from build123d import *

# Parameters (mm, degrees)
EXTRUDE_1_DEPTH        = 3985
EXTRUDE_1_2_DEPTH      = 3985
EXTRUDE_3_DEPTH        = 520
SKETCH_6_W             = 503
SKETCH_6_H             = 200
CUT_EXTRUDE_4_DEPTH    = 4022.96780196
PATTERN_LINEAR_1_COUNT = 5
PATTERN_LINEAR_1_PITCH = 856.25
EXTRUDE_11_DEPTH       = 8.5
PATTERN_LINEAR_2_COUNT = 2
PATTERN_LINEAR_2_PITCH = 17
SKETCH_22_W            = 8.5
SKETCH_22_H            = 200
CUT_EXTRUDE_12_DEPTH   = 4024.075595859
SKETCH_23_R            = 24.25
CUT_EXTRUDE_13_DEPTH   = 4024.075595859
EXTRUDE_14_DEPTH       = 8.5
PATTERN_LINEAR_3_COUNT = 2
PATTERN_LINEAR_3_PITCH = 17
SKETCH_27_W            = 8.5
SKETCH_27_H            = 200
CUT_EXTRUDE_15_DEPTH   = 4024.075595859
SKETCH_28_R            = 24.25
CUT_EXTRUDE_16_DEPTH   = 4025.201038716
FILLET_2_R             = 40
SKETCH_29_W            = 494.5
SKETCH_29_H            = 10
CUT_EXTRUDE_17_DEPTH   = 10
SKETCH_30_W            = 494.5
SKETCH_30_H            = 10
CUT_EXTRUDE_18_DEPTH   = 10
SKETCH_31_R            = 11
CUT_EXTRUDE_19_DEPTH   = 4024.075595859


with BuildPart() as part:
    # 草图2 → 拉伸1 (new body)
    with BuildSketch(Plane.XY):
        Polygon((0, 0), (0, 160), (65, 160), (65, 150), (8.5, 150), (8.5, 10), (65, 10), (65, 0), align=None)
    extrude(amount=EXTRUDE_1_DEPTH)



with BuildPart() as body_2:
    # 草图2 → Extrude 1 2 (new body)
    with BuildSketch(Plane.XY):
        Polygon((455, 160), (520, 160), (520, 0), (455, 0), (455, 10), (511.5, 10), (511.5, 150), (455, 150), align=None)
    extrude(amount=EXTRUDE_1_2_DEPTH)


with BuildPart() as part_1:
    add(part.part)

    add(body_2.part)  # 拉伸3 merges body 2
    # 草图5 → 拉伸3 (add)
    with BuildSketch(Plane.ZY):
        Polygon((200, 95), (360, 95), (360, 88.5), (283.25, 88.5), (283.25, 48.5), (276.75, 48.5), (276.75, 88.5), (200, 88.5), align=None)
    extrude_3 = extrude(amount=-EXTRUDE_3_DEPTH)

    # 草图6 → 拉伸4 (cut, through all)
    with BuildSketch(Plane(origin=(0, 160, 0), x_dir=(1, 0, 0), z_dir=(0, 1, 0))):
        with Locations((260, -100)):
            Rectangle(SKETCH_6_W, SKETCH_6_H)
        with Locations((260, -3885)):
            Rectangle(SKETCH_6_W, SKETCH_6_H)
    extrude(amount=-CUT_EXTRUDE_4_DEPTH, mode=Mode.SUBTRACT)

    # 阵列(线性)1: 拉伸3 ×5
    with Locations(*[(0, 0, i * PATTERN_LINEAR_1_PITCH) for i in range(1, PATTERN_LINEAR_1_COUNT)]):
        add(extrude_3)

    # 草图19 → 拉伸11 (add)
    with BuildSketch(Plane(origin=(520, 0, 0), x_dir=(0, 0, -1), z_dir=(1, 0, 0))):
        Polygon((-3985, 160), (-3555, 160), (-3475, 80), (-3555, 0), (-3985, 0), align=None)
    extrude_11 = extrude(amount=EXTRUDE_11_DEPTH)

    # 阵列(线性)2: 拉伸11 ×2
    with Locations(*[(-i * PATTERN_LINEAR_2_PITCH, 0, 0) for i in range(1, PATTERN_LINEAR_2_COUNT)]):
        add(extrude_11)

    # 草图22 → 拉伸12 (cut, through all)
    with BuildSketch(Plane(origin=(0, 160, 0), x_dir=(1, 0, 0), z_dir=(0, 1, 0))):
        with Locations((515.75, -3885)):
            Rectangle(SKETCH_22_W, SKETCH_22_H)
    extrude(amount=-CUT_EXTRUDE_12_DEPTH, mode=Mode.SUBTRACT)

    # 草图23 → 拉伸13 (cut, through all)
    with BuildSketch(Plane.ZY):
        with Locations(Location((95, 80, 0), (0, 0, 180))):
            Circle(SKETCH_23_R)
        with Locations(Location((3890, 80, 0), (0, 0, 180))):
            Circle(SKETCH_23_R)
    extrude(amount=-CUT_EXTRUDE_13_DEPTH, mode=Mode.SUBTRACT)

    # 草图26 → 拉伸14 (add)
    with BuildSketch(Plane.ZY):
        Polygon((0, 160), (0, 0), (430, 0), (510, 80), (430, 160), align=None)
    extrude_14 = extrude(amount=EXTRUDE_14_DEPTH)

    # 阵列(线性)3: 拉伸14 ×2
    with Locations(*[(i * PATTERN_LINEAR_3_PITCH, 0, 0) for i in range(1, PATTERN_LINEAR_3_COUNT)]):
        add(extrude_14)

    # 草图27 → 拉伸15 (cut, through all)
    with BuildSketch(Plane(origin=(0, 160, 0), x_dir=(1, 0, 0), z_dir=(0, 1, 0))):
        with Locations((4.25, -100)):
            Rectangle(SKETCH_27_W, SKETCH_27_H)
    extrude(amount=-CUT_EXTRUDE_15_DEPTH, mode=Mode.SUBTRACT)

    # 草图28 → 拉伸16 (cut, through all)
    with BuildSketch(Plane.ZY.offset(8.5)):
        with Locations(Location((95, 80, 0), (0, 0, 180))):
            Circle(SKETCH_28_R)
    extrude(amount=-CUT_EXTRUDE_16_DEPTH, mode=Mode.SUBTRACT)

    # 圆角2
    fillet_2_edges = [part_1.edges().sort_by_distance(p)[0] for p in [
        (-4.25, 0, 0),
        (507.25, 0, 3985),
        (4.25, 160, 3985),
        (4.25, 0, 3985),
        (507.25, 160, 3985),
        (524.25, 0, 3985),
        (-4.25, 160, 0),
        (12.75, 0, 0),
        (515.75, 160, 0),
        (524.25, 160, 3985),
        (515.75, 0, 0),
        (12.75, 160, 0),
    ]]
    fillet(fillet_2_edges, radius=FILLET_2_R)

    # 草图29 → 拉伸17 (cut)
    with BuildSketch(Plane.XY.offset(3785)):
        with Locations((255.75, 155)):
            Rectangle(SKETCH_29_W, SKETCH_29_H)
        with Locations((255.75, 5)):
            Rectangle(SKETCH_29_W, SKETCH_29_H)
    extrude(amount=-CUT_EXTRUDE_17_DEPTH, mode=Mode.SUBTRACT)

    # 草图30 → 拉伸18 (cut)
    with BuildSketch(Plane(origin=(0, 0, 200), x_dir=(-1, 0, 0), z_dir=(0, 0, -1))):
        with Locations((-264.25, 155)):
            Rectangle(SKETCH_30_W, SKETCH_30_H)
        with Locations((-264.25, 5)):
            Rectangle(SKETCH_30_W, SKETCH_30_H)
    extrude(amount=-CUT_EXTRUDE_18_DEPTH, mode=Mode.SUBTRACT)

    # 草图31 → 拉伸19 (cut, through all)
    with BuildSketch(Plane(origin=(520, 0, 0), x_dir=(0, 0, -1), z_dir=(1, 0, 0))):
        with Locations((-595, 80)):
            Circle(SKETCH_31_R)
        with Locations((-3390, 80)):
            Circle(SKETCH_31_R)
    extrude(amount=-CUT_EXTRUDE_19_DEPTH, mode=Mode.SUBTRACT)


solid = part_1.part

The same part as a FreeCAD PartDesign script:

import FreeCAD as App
import Part
import Sketcher
from FreeCAD import Vector
Q = App.Units.Quantity


def edges_at(feature, points):
    """Names of the edges that pass closest to the given points."""
    edges = feature.Shape.Edges
    near = lambda p: min(range(len(edges)), key=lambda i: edges[i].distToShape(Part.Vertex(*p))[0])
    return sorted({f"Edge{near(p) + 1}" for p in points})


def add_polygon(sketch, points):
    """Adds a closed chain of lines whose ends are joined by coincident constraints."""
    first, n = sketch.GeometryCount, len(points)
    for a, b in zip(points, points[1:] + points[:1]):
        sketch.addGeometry(Part.LineSegment(App.Vector(*a, 0), App.Vector(*b, 0)), False)
    for i in range(n):
        sketch.addConstraint(Sketcher.Constraint("Coincident", first + i, 2, first + (i + 1) % n, 1))

doc = App.newDocument("Part")
body = doc.addObject("PartDesign::Body", "Body")

# Sketch on XY plane
sketch1 = body.newObject("Sketcher::SketchObject", "Sketch")
sketch1.AttachmentSupport = (doc.getObject("XY_Plane"), [""])
sketch1.MapMode = "FlatFace"
add_polygon(sketch1, [(0, 160), (0, 0), (65, 0), (65, 10), (8, 10), (8, 150), (65, 150), (65, 160)])  # lines 0-7
sketch1.addConstraint([
    Sketcher.Constraint("Vertical", 0),
    Sketcher.Constraint("Horizontal", 1),
    Sketcher.Constraint("Vertical", 2),
    Sketcher.Constraint("Horizontal", 3),
    Sketcher.Constraint("Vertical", 4),
    Sketcher.Constraint("Horizontal", 5),
    Sketcher.Constraint("Vertical", 6),
    Sketcher.Constraint("Horizontal", 7),
    Sketcher.Constraint("Coincident", 0, 2, -1, 1),
    Sketcher.Constraint("Vertical", 2, 2, 5, 2),
    Sketcher.Constraint("Equal", 2, 6),
    Sketcher.Constraint("DistanceX", 1, 1, 1, 2, Q("65 mm")),
    Sketcher.Constraint("DistanceY", 0, 2, 0, 1, Q("160 mm")),
    Sketcher.Constraint("DistanceY", 2, 1, 2, 2, Q("10 mm")),
    Sketcher.Constraint("DistanceX", 3, 2, 3, 1, Q("56.5 mm")),
])
pad1 = body.newObject("PartDesign::Pad", "Pad")
pad1.Profile = sketch1
pad1.Length = 3985
body2 = doc.addObject("PartDesign::Body", "Body001")

# Sketch on XY plane
sketch2 = body2.newObject("Sketcher::SketchObject", "Sketch001")
sketch2.AttachmentSupport = (doc.getObject("XY_Plane001"), [""])
sketch2.MapMode = "FlatFace"
add_polygon(sketch2, [(520, 160), (455, 160), (455, 150), (512, 150), (512, 10), (455, 10), (455, 0), (520, 0)])  # lines 0-7
sketch2.addConstraint([
    Sketcher.Constraint("Horizontal", 0),
    Sketcher.Constraint("Vertical", 1),
    Sketcher.Constraint("Horizontal", 2),
    Sketcher.Constraint("Vertical", 3),
    Sketcher.Constraint("Horizontal", 4),
    Sketcher.Constraint("Vertical", 5),
    Sketcher.Constraint("Horizontal", 6),
    Sketcher.Constraint("Vertical", 7),
    Sketcher.Constraint("PointOnObject", 5, 2, -1),
    Sketcher.Constraint("Vertical", 1, 2, 4, 2),
    Sketcher.Constraint("Equal", 1, 5),
    Sketcher.Constraint("DistanceX", 0, 2, 0, 1, Q("65 mm")),
    Sketcher.Constraint("DistanceY", 1, 2, 1, 1, Q("10 mm")),
    Sketcher.Constraint("DistanceY", 3, 2, 3, 1, Q("140 mm")),
    Sketcher.Constraint("DistanceX", 2, 1, 2, 2, Q("56.5 mm")),
    Sketcher.Constraint("DistanceX", -1, 1, 0, 2, Q("455 mm")),
])
pad2 = body2.newObject("PartDesign::Pad", "Pad001")
pad2.Profile = sketch2
pad2.Length = 3985
body.AllowCompound = True
doc.recompute()

boolean = body.newObject("PartDesign::Boolean", "Boolean")
boolean.Type = "Fuse"
boolean.addObjects([body2])

# Sketch on YZ plane
sketch3 = body.newObject("Sketcher::SketchObject", "Sketch002")
sketch3.AttachmentSupport = (doc.getObject("YZ_Plane"), [""])
sketch3.MapMode = "FlatFace"
add_polygon(sketch3, [(95, 360), (95, 200), (88, 200), (88, 277), (48, 277), (48, 283), (88, 283), (88, 360)])  # lines 0-7
sketch3.addConstraint([
    Sketcher.Constraint("Vertical", 0),
    Sketcher.Constraint("Horizontal", 1),
    Sketcher.Constraint("Vertical", 2),
    Sketcher.Constraint("Horizontal", 3),
    Sketcher.Constraint("Vertical", 4),
    Sketcher.Constraint("Horizontal", 5),
    Sketcher.Constraint("Vertical", 6),
    Sketcher.Constraint("Horizontal", 7),
    Sketcher.Constraint("Vertical", 2, 2, 5, 2),
    Sketcher.Constraint("Equal", 7, 4),
    Sketcher.Constraint("Equal", 2, 6),
    Sketcher.Constraint("DistanceX", 3, 2, 3, 1, Q("40 mm")),
    Sketcher.Constraint("DistanceY", 0, 2, 0, 1, Q("160 mm")),
    Sketcher.Constraint("DistanceX", 1, 2, 1, 1, Q("6.5 mm")),
    Sketcher.Constraint("DistanceX", -1, 1, 0, 2, Q("95 mm")),
    Sketcher.Constraint("DistanceY", -1, 1, 0, 2, Q("200 mm")),
])
pad3 = body.newObject("PartDesign::Pad", "Pad002")
pad3.Profile = sketch3
pad3.Length = 520

# Sketch on XZ plane
sketch4 = body.newObject("Sketcher::SketchObject", "Sketch003")
sketch4.AttachmentSupport = (doc.getObject("XZ_Plane"), [""])
sketch4.MapMode = "FlatFace"
sketch4.AttachmentOffset = App.Placement(Vector(0, 0, -160), App.Rotation())
add_polygon(sketch4, [(8, 0), (8, 200), (512, 200), (512, 0)])  # lines 0-3
add_polygon(sketch4, [(8, 3785), (8, 3985), (512, 3985), (512, 3785)])  # lines 4-7
sketch4.addConstraint([
    Sketcher.Constraint("Vertical", 0),
    Sketcher.Constraint("Horizontal", 1),
    Sketcher.Constraint("Vertical", 2),
    Sketcher.Constraint("Horizontal", 3),
    Sketcher.Constraint("Vertical", 4),
    Sketcher.Constraint("Horizontal", 5),
    Sketcher.Constraint("Vertical", 6),
    Sketcher.Constraint("Horizontal", 7),
    Sketcher.Constraint("PointOnObject", 2, 2, -1),
    Sketcher.Constraint("Vertical", 3, 2, 4, 2),
    Sketcher.Constraint("Vertical", 2, 2, 5, 2),
    Sketcher.Constraint("Equal", 2, 4),
    Sketcher.Constraint("DistanceX", 1, 1, 1, 2, Q("503 mm")),
    Sketcher.Constraint("DistanceY", 0, 1, 0, 2, Q("200 mm")),
    Sketcher.Constraint("DistanceY", -1, 1, 4, 2, Q("3985 mm")),
    Sketcher.Constraint("DistanceX", -1, 1, 0, 2, Q("8.5 mm")),
])
pocket1 = body.newObject("PartDesign::Pocket", "Pocket")
pocket1.Profile = sketch4
pocket1.Type = "ThroughAll"
pocket1.Reversed = True
doc.recompute()

linearpattern = body.newObject("PartDesign::LinearPattern", "LinearPattern")
linearpattern.Originals = [pad3]
linearpattern.Direction = (doc.getObject("Z_Axis"), [""])
linearpattern.Mode = "offset"
linearpattern.Offset = 856.25
linearpattern.Occurrences = 5
body.Tip = linearpattern

# Sketch on YZ plane
sketch5 = body.newObject("Sketcher::SketchObject", "Sketch004")
sketch5.AttachmentSupport = (doc.getObject("YZ_Plane"), [""])
sketch5.MapMode = "FlatFace"
sketch5.AttachmentOffset = App.Placement(Vector(0, 0, 520), App.Rotation())
add_polygon(sketch5, [(160, 3555), (160, 3985), (0, 3985), (0, 3555), (80, 3475)])  # lines 0-4
sketch5.addConstraint([
    Sketcher.Constraint("Vertical", 0),
    Sketcher.Constraint("Horizontal", 1),
    Sketcher.Constraint("Vertical", 2),
    Sketcher.Constraint("PointOnObject", 1, 2, -2),
    Sketcher.Constraint("Perpendicular", 3, 4),
    Sketcher.Constraint("Horizontal", 2, 2, 4, 2),
    Sketcher.Constraint("Equal", 3, 4),
    Sketcher.Constraint("DistanceX", 1, 2, 1, 1, Q("160 mm")),
    Sketcher.Constraint("DistanceY", 0, 1, 0, 2, Q("430 mm")),
    Sketcher.Constraint("DistanceY", -1, 1, 0, 2, Q("3985 mm")),
])
pad4 = body.newObject("PartDesign::Pad", "Pad003")
pad4.Profile = sketch5
pad4.Length = 8.5
doc.recompute()

linearpattern2 = body.newObject("PartDesign::LinearPattern", "LinearPattern001")
linearpattern2.Originals = [pad4]
linearpattern2.Direction = (doc.getObject("X_Axis"), [""])
linearpattern2.Mode = "offset"
linearpattern2.Offset = 17
linearpattern2.Occurrences = 2
linearpattern2.Reversed = True
body.Tip = linearpattern2

# Sketch on XZ plane
sketch6 = body.newObject("Sketcher::SketchObject", "Sketch005")
sketch6.AttachmentSupport = (doc.getObject("XZ_Plane"), [""])
sketch6.MapMode = "FlatFace"
sketch6.AttachmentOffset = App.Placement(Vector(0, 0, -160), App.Rotation())
add_polygon(sketch6, [(512, 3785), (512, 3985), (520, 3985), (520, 3785)])  # lines 0-3
sketch6.addConstraint([
    Sketcher.Constraint("Vertical", 0),
    Sketcher.Constraint("Horizontal", 1),
    Sketcher.Constraint("Vertical", 2),
    Sketcher.Constraint("Horizontal", 3),
    Sketcher.Constraint("DistanceY", 0, 1, 0, 2, Q("200 mm")),
    Sketcher.Constraint("DistanceX", 1, 1, 1, 2, Q("8.5 mm")),
    Sketcher.Constraint("DistanceY", -1, 1, 0, 2, Q("3985 mm")),
    Sketcher.Constraint("DistanceX", -1, 1, 1, 2, Q("520 mm")),
])
pocket2 = body.newObject("PartDesign::Pocket", "Pocket001")
pocket2.Profile = sketch6
pocket2.Type = "ThroughAll"
pocket2.Reversed = True

# Sketch on YZ plane
sketch7 = body.newObject("Sketcher::SketchObject", "Sketch006")
sketch7.AttachmentSupport = (doc.getObject("YZ_Plane"), [""])
sketch7.MapMode = "FlatFace"
sketch7.addGeometry([
    Part.Circle(Vector(80, 95, 0), Vector(0, 0, 1), 24),
    Part.Circle(Vector(80, 3890, 0), Vector(0, 0, 1), 24),
], False)
sketch7.addConstraint([
    Sketcher.Constraint("Equal", 0, 1),
    Sketcher.Constraint("Vertical", 0, 3, 1, 3),
    Sketcher.Constraint("Diameter", 0, Q("48.5 mm")),
    Sketcher.Constraint("DistanceX", -1, 1, 0, 3, Q("80 mm")),
    Sketcher.Constraint("DistanceY", -1, 1, 0, 3, Q("95 mm")),
    Sketcher.Constraint("DistanceY", -1, 1, 1, 3, Q("3890 mm")),
])
pocket3 = body.newObject("PartDesign::Pocket", "Pocket002")
pocket3.Profile = sketch7
pocket3.Type = "ThroughAll"
pocket3.Reversed = True

# Sketch on YZ plane
sketch8 = body.newObject("Sketcher::SketchObject", "Sketch007")
sketch8.AttachmentSupport = (doc.getObject("YZ_Plane"), [""])
sketch8.MapMode = "FlatFace"
add_polygon(sketch8, [(160, 0), (0, 0), (0, 430), (80, 510), (160, 430)])  # lines 0-4
sketch8.addConstraint([
    Sketcher.Constraint("Horizontal", 0),
    Sketcher.Constraint("Vertical", 1),
    Sketcher.Constraint("Vertical", 4),
    Sketcher.Constraint("Coincident", 0, 2, -1, 1),
    Sketcher.Constraint("Perpendicular", 2, 3),
    Sketcher.Constraint("Horizontal", 1, 2, 3, 2),
    Sketcher.Constraint("Equal", 2, 3),
    Sketcher.Constraint("DistanceX", 0, 2, 0, 1, Q("160 mm")),
    Sketcher.Constraint("DistanceY", 1, 1, 1, 2, Q("430 mm")),
])
pad5 = body.newObject("PartDesign::Pad", "Pad004")
pad5.Profile = sketch8
pad5.Length = 8.5
pad5.Reversed = True
doc.recompute()

linearpattern3 = body.newObject("PartDesign::LinearPattern", "LinearPattern002")
linearpattern3.Originals = [pad5]
linearpattern3.Direction = (doc.getObject("X_Axis"), [""])
linearpattern3.Mode = "offset"
linearpattern3.Offset = 17
linearpattern3.Occurrences = 2
body.Tip = linearpattern3

# Sketch on XZ plane
sketch9 = body.newObject("Sketcher::SketchObject", "Sketch008")
sketch9.AttachmentSupport = (doc.getObject("XZ_Plane"), [""])
sketch9.MapMode = "FlatFace"
sketch9.AttachmentOffset = App.Placement(Vector(0, 0, -160), App.Rotation())
add_polygon(sketch9, [(0, 0), (0, 200), (8, 200), (8, 0)])  # lines 0-3
sketch9.addConstraint([
    Sketcher.Constraint("Vertical", 0),
    Sketcher.Constraint("Horizontal", 1),
    Sketcher.Constraint("Vertical", 2),
    Sketcher.Constraint("Horizontal", 3),
    Sketcher.Constraint("Coincident", 3, 2, -1, 1),
    Sketcher.Constraint("DistanceY", 0, 1, 0, 2, Q("200 mm")),
    Sketcher.Constraint("DistanceX", 1, 1, 1, 2, Q("8.5 mm")),
])
pocket4 = body.newObject("PartDesign::Pocket", "Pocket003")
pocket4.Profile = sketch9
pocket4.Type = "ThroughAll"
pocket4.Reversed = True

# Sketch on YZ plane
sketch10 = body.newObject("Sketcher::SketchObject", "Sketch009")
sketch10.AttachmentSupport = (doc.getObject("YZ_Plane"), [""])
sketch10.MapMode = "FlatFace"
sketch10.AttachmentOffset = App.Placement(Vector(0, 0, -8.5), App.Rotation())
sketch10.addGeometry(Part.Circle(Vector(80, 95, 0), Vector(0, 0, 1), 24), False)
sketch10.addConstraint([
    Sketcher.Constraint("Diameter", 0, Q("48.5 mm")),
    Sketcher.Constraint("DistanceX", -1, 1, 0, 3, Q("80 mm")),
    Sketcher.Constraint("DistanceY", -1, 1, 0, 3, Q("95 mm")),
])
pocket5 = body.newObject("PartDesign::Pocket", "Pocket004")
pocket5.Profile = sketch10
pocket5.Type = "ThroughAll"
pocket5.Reversed = True
doc.recompute()

fillet = body.newObject("PartDesign::Fillet", "Fillet")
fillet.Base = (pocket5, edges_at(pocket5, [
    (-4.25, 0, 0),
    (507.25, 0, 3985),
    (4.25, 160, 3985),
    (4.25, 0, 3985),
    (507.25, 160, 3985),
    (524.25, 0, 3985),
    (-4.25, 160, 0),
    (12.75, 0, 0),
    (515.75, 160, 0),
    (524.25, 160, 3985),
    (515.75, 0, 0),
    (12.75, 160, 0),
]))
fillet.Radius = 40

# Sketch on XY plane
sketch11 = body.newObject("Sketcher::SketchObject", "Sketch010")
sketch11.AttachmentSupport = (doc.getObject("XY_Plane"), [""])
sketch11.MapMode = "FlatFace"
sketch11.AttachmentOffset = App.Placement(Vector(0, 0, 3785), App.Rotation())
add_polygon(sketch11, [(8, 160), (8, 150), (503, 150), (503, 160)])  # lines 0-3
add_polygon(sketch11, [(8, 10), (8, 0), (503, 0), (503, 10)])  # lines 4-7
sketch11.addConstraint([
    Sketcher.Constraint("Vertical", 0),
    Sketcher.Constraint("Horizontal", 1),
    Sketcher.Constraint("Vertical", 2),
    Sketcher.Constraint("Horizontal", 3),
    Sketcher.Constraint("Vertical", 4),
    Sketcher.Constraint("Horizontal", 5),
    Sketcher.Constraint("Vertical", 6),
    Sketcher.Constraint("Horizontal", 7),
    Sketcher.Constraint("PointOnObject", 4, 2, -1),
    Sketcher.Constraint("Vertical", 3, 2, 4, 2),
    Sketcher.Constraint("Vertical", 2, 2, 5, 2),
    Sketcher.Constraint("Equal", 2, 4),
    Sketcher.Constraint("DistanceY", 0, 2, 0, 1, Q("10 mm")),
    Sketcher.Constraint("DistanceX", 1, 1, 1, 2, Q("494.5 mm")),
    Sketcher.Constraint("DistanceY", -1, 1, 0, 2, Q("150 mm")),
    Sketcher.Constraint("DistanceX", -1, 1, 1, 2, Q("503 mm")),
])
pocket6 = body.newObject("PartDesign::Pocket", "Pocket005")
pocket6.Profile = sketch11
pocket6.Length = 10

# Sketch on XY plane
sketch12 = body.newObject("Sketcher::SketchObject", "Sketch011")
sketch12.AttachmentSupport = (doc.getObject("XY_Plane"), [""])
sketch12.MapMode = "FlatFace"
sketch12.AttachmentOffset = App.Placement(Vector(0, 0, 200), App.Rotation())
add_polygon(sketch12, [(512, 160), (512, 150), (17, 150), (17, 160)])  # lines 0-3
add_polygon(sketch12, [(512, 10), (512, 0), (17, 0), (17, 10)])  # lines 4-7
sketch12.addConstraint([
    Sketcher.Constraint("Vertical", 0),
    Sketcher.Constraint("Horizontal", 1),
    Sketcher.Constraint("Vertical", 2),
    Sketcher.Constraint("Horizontal", 3),
    Sketcher.Constraint("Vertical", 4),
    Sketcher.Constraint("Horizontal", 5),
    Sketcher.Constraint("Vertical", 6),
    Sketcher.Constraint("Horizontal", 7),
    Sketcher.Constraint("PointOnObject", 4, 2, -1),
    Sketcher.Constraint("Vertical", 3, 2, 4, 2),
    Sketcher.Constraint("Vertical", 2, 2, 5, 2),
    Sketcher.Constraint("Equal", 2, 4),
    Sketcher.Constraint("DistanceY", 0, 2, 0, 1, Q("10 mm")),
    Sketcher.Constraint("DistanceX", 1, 2, 1, 1, Q("494.5 mm")),
    Sketcher.Constraint("DistanceY", -1, 1, 0, 2, Q("150 mm")),
    Sketcher.Constraint("DistanceX", -1, 1, 1, 2, Q("17 mm")),
])
pocket7 = body.newObject("PartDesign::Pocket", "Pocket006")
pocket7.Profile = sketch12
pocket7.Length = 10
pocket7.Reversed = True

# Sketch on YZ plane
sketch13 = body.newObject("Sketcher::SketchObject", "Sketch012")
sketch13.AttachmentSupport = (doc.getObject("YZ_Plane"), [""])
sketch13.MapMode = "FlatFace"
sketch13.AttachmentOffset = App.Placement(Vector(0, 0, 520), App.Rotation())
sketch13.addGeometry([
    Part.Circle(Vector(80, 595, 0), Vector(0, 0, 1), 11),
    Part.Circle(Vector(80, 3390, 0), Vector(0, 0, 1), 11),
], False)
sketch13.addConstraint([
    Sketcher.Constraint("Equal", 0, 1),
    Sketcher.Constraint("Vertical", 0, 3, 1, 3),
    Sketcher.Constraint("Diameter", 0, Q("22 mm")),
    Sketcher.Constraint("DistanceX", -1, 1, 0, 3, Q("80 mm")),
    Sketcher.Constraint("DistanceY", -1, 1, 0, 3, Q("595 mm")),
    Sketcher.Constraint("DistanceY", -1, 1, 1, 3, Q("3390 mm")),
])
pocket8 = body.newObject("PartDesign::Pocket", "Pocket007")
pocket8.Profile = sketch13
pocket8.Type = "ThroughAll"

doc.recompute()
